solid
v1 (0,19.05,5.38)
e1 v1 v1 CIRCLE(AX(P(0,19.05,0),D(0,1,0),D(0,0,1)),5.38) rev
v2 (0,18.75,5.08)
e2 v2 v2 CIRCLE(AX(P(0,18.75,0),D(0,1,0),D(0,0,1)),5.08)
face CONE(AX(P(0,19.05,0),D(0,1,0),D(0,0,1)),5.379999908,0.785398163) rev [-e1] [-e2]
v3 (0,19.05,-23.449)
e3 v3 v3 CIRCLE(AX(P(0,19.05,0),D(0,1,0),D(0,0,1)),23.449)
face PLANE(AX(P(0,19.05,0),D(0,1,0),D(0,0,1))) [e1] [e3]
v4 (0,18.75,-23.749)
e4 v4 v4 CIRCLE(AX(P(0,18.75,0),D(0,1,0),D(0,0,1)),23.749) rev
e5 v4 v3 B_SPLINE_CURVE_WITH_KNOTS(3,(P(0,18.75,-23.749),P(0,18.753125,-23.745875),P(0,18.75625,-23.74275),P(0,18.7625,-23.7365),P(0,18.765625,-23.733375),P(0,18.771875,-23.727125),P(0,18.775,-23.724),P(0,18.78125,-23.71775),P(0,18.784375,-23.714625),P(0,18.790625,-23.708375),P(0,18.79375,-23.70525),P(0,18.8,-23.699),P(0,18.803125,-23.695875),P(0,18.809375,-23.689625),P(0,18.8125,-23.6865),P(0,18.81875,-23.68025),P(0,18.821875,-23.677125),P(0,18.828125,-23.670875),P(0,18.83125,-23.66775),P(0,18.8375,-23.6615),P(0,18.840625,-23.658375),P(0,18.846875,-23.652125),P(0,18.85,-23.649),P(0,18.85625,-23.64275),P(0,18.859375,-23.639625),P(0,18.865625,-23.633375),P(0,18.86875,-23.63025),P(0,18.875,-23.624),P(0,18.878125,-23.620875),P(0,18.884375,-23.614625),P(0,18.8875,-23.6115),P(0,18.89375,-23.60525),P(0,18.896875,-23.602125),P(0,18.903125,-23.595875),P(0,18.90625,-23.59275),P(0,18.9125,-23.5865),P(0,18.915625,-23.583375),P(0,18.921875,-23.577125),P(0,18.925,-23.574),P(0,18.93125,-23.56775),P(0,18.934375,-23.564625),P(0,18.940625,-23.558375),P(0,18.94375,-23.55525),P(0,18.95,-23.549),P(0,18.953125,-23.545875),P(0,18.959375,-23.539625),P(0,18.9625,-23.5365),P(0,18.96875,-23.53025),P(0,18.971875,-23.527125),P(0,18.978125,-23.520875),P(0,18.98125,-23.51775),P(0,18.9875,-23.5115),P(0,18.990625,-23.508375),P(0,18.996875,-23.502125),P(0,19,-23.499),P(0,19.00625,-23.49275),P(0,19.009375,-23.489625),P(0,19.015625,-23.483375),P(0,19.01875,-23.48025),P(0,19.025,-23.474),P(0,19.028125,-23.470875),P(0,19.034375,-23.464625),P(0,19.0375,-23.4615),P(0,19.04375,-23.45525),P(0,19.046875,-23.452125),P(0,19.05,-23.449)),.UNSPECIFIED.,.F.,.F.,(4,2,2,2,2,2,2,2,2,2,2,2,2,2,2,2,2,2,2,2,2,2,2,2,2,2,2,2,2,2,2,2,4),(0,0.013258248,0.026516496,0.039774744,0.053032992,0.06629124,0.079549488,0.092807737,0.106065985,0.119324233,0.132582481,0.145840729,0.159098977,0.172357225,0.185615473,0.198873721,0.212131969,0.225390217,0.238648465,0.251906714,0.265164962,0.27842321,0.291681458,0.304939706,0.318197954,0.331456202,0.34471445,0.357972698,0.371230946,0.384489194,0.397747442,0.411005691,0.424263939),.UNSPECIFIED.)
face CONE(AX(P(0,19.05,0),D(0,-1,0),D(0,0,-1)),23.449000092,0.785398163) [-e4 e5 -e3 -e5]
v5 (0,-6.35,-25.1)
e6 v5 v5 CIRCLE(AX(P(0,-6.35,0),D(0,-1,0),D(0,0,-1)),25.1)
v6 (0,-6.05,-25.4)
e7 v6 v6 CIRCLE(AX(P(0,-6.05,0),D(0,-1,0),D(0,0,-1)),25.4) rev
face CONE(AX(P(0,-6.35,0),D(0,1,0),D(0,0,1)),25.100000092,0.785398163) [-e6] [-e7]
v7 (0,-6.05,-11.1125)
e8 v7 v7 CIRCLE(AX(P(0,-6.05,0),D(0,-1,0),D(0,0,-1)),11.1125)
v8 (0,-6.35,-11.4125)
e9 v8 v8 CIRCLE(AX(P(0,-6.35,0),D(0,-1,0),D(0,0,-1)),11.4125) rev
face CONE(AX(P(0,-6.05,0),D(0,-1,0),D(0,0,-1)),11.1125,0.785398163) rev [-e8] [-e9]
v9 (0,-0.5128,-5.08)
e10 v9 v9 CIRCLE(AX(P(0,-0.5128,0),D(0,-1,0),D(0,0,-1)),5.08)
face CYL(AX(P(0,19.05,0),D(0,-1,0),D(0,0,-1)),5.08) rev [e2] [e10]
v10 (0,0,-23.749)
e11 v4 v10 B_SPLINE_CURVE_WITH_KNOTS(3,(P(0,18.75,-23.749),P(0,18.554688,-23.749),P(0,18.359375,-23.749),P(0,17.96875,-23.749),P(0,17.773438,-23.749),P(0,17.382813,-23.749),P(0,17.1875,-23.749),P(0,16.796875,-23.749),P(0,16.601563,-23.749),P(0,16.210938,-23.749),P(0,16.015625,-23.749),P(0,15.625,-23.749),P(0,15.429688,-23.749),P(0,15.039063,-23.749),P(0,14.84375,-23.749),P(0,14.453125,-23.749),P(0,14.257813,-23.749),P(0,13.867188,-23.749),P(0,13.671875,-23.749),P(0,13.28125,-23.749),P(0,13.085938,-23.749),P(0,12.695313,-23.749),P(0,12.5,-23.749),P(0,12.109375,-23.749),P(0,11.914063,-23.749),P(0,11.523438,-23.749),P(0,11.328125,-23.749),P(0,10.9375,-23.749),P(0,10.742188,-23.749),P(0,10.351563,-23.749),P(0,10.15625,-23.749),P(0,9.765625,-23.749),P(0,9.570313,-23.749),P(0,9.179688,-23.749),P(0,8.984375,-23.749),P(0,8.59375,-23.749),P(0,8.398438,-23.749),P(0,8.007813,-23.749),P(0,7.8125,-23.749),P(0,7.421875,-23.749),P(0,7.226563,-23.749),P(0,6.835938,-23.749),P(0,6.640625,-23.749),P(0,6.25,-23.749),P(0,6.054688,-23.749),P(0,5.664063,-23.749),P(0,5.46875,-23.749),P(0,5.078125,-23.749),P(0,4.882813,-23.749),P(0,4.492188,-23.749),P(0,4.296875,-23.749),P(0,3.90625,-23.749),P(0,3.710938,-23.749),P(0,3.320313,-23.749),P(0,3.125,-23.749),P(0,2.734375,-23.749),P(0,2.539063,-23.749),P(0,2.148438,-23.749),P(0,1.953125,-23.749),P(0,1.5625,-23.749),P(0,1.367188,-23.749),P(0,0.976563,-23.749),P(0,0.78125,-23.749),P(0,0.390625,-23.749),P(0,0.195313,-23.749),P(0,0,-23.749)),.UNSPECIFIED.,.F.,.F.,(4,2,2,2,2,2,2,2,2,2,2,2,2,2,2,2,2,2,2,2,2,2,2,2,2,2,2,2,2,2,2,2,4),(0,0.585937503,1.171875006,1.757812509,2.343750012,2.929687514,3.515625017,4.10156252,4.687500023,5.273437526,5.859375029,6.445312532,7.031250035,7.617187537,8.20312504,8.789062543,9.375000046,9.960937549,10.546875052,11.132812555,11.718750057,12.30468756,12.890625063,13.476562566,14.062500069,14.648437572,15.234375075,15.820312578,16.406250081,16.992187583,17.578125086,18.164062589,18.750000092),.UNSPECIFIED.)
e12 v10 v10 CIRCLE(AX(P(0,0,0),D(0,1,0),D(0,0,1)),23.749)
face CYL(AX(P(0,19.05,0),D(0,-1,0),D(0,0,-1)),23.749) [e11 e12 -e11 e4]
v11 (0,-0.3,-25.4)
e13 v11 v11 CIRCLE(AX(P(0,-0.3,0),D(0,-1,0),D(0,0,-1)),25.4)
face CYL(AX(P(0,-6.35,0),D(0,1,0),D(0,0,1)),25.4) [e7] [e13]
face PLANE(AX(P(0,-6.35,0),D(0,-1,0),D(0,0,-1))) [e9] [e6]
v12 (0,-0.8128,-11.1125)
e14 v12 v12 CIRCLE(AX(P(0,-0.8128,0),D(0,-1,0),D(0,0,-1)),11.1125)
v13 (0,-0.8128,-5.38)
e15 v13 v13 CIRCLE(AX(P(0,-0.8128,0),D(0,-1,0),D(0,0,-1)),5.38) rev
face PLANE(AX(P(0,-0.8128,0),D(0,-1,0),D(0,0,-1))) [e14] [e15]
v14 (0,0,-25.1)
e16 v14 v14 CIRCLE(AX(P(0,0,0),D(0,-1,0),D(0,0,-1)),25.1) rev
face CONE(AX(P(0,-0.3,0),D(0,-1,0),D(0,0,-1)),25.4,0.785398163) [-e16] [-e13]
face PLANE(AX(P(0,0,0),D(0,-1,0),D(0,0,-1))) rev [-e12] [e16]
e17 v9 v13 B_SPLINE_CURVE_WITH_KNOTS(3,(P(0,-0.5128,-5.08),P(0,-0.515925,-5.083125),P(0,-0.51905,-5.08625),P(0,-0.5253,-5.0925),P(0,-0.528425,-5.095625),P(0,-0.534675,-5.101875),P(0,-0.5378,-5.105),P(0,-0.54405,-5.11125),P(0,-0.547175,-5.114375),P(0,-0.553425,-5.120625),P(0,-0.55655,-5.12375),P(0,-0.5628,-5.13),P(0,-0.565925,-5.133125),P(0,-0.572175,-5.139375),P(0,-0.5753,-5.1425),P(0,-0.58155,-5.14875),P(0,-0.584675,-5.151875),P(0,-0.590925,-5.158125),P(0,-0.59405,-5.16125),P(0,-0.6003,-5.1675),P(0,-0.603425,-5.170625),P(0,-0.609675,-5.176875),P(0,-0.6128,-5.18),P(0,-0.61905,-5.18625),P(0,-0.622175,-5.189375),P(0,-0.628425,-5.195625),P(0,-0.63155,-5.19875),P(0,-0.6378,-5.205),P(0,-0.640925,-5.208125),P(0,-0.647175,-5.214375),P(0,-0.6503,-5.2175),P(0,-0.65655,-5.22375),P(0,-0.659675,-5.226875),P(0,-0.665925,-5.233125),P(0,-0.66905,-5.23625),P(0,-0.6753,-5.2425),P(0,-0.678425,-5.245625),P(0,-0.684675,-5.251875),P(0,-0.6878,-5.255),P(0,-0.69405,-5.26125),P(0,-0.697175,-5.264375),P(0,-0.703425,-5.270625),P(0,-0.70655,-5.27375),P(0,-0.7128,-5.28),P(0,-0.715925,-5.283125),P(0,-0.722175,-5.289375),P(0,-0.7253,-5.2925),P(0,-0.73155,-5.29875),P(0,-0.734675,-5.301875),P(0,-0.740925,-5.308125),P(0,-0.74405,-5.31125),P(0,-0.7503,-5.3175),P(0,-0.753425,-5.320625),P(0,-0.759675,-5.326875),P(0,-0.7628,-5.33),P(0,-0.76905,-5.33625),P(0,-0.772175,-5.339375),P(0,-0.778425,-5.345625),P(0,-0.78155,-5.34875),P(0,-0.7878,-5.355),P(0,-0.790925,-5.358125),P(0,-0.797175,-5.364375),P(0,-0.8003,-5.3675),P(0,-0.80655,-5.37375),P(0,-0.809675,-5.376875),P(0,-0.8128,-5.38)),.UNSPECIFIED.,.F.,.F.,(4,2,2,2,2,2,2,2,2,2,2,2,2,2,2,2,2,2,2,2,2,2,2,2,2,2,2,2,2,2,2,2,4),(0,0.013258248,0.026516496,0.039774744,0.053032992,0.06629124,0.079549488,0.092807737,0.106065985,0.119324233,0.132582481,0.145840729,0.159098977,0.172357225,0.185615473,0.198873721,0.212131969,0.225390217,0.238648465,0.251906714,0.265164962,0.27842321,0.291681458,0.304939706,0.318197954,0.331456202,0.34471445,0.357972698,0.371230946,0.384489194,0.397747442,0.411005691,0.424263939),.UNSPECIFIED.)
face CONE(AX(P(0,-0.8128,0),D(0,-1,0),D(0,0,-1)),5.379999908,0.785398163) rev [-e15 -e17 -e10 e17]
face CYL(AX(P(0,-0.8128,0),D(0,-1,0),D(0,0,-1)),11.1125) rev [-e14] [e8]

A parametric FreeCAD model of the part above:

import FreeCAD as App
import Part
import Sketcher

V = App.Vector
Q = App.Units.Quantity


def edges_at(feature, points):
    """Names of the edges that pass closest to the given points."""
    edges = feature.Shape.Edges
    near = lambda p: min(range(len(edges)), key=lambda i: edges[i].distToShape(Part.Vertex(*p))[0])
    return sorted({f"Edge{near(p) + 1}" for p in points})

doc = App.newDocument("Part")
body = doc.addObject("PartDesign::Body", "Body")

# Sketch on XZ plane
sketch1 = body.newObject("Sketcher::SketchObject", "Sketch")
sketch1.AttachmentSupport = (doc.getObject("XZ_Plane"), [""])
sketch1.MapMode = "FlatFace"
sketch1.addGeometry(Part.Circle(V(0, 0, 0), V(0, 0, 1), 24), False)
sketch1.addConstraint(Sketcher.Constraint("Coincident", 0, 3, -1, 1))
sketch1.addConstraint(Sketcher.Constraint("Diameter", 0, Q("1.87 in")))
pad1 = body.newObject("PartDesign::Pad", "Pad")
pad1.Profile = sketch1
pad1.Length = Q("0.75 in")
pad1.Reversed = True

# Sketch on XZ plane
sketch2 = body.newObject("Sketcher::SketchObject", "Sketch001")
sketch2.AttachmentSupport = (doc.getObject("XZ_Plane"), [""])
sketch2.MapMode = "FlatFace"
sketch2.addGeometry(Part.Circle(V(0, 0, 0), V(0, 0, 1), 25), False)
sketch2.addConstraint(Sketcher.Constraint("Coincident", 0, 3, -1, 1))
sketch2.addConstraint(Sketcher.Constraint("Diameter", 0, Q("2 in")))
pad2 = body.newObject("PartDesign::Pad", "Pad001")
pad2.Profile = sketch2
pad2.Length = Q("0.25 in")

# Sketch on XZ plane
sketch3 = body.newObject("Sketcher::SketchObject", "Sketch002")
sketch3.AttachmentSupport = (doc.getObject("XZ_Plane"), [""])
sketch3.MapMode = "FlatFace"
sketch3.AttachmentOffset = App.Placement(V(0, 0, 0.25 * 25.4), App.Rotation())
sketch3.addGeometry(Part.Circle(V(0, 0, 0), V(0, 0, 1), 5), False)
sketch3.addConstraint(Sketcher.Constraint("Coincident", 0, 3, -1, 1))
sketch3.addConstraint(Sketcher.Constraint("Diameter", 0, Q("0.4 in")))
pocket1 = body.newObject("PartDesign::Pocket", "Pocket")
pocket1.Profile = sketch3
pocket1.Type = "ThroughAll"

# Sketch on XZ plane
sketch4 = body.newObject("Sketcher::SketchObject", "Sketch003")
sketch4.AttachmentSupport = (doc.getObject("XZ_Plane"), [""])
sketch4.MapMode = "FlatFace"
sketch4.AttachmentOffset = App.Placement(V(0, 0, 0.25 * 25.4), App.Rotation())
sketch4.addGeometry(Part.Circle(V(0, 0, 0), V(0, 0, 1), 11), False)
sketch4.addConstraint(Sketcher.Constraint("Coincident", 0, 3, -1, 1))
sketch4.addConstraint(Sketcher.Constraint("Diameter", 0, Q("0.875 in")))
pocket2 = body.newObject("PartDesign::Pocket", "Pocket001")
pocket2.Profile = sketch4
pocket2.Length = Q("0.218 in")
doc.recompute()

chamfer = body.newObject("PartDesign::Chamfer", "Chamfer")
chamfer.Base = (pocket2, edges_at(pocket2, [
    (0, 19.05, 5.08),
    (0, -6.35, 11.113),
    (0, -0.813, 5.08),
    (0, 19.05, 23.749),
    (0, 0, 25.4),
    (0, -6.35, 25.4),
]))
chamfer.Size = 0.3

doc.recompute()
